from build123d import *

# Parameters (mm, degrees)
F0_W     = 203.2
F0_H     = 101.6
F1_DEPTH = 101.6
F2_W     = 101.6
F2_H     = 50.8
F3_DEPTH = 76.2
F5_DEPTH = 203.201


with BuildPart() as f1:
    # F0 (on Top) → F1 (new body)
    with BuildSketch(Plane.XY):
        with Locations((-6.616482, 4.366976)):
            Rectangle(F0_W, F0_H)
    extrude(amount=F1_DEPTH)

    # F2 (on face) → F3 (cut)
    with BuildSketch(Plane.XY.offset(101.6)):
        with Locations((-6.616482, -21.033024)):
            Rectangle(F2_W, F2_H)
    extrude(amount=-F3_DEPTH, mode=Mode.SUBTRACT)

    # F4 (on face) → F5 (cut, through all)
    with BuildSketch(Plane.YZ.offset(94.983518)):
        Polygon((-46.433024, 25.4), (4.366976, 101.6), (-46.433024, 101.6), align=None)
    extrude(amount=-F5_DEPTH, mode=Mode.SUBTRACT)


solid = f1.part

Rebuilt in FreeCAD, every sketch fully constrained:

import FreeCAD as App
import Part
import Sketcher
Q = App.Units.Quantity


def add_polygon(sketch, points):
    """Adds a closed chain of lines whose ends are joined by coincident constraints."""
    first, n = sketch.GeometryCount, len(points)
    for a, b in zip(points, points[1:] + points[:1]):
        sketch.addGeometry(Part.LineSegment(App.Vector(*a, 0), App.Vector(*b, 0)), False)
    for i in range(n):
        sketch.addConstraint(Sketcher.Constraint("Coincident", first + i, 2, first + (i + 1) % n, 1))

doc = App.newDocument("Part")
body = doc.addObject("PartDesign::Body", "Body")

sketch1 = body.newObject("Sketcher::SketchObject", "Sketch")
sketch1.AttachmentSupport = (doc.getObject("XY_Plane"), [""])
sketch1.MapMode = "FlatFace"
add_polygon(sketch1, [(-108.216482, 55.166976), (-108.216482, -46.433024), (94.983518, -46.433024), (94.983518, 55.166976)])
sketch1.addConstraint(Sketcher.Constraint("Vertical", 0))
sketch1.addConstraint(Sketcher.Constraint("Horizontal", 1))
sketch1.addConstraint(Sketcher.Constraint("Vertical", 2))
sketch1.addConstraint(Sketcher.Constraint("Horizontal", 3))
sketch1.addConstraint(Sketcher.Constraint("DistanceX", 1, 1, 1, 2, Q("8 in")))
sketch1.addConstraint(Sketcher.Constraint("DistanceY", 0, 2, 0, 1, Q("4 in")))
sketch1.addConstraint(Sketcher.Constraint("DistanceX", 0, 2, -1, 1, 108.216482))
sketch1.addConstraint(Sketcher.Constraint("DistanceY", 0, 2, -1, 1, 46.433024))
pad1 = body.newObject("PartDesign::Pad", "Pad")
pad1.Profile = sketch1
pad1.Length = Q("4 in")

sketch2 = body.newObject("Sketcher::SketchObject", "Sketch001")
sketch2.AttachmentSupport = (doc.getObject("XY_Plane"), [""])
sketch2.MapMode = "FlatFace"
sketch2.AttachmentOffset = App.Placement(App.Vector(0, 0, 4 * 25.4), App.Rotation())
add_polygon(sketch2, [(-57.416482, 4.366976), (-57.416482, -46.433024), (44.183518, -46.433024), (44.183518, 4.366976)])
sketch2.addConstraint(Sketcher.Constraint("Vertical", 0))
sketch2.addConstraint(Sketcher.Constraint("Horizontal", 1))
sketch2.addConstraint(Sketcher.Constraint("Vertical", 2))
sketch2.addConstraint(Sketcher.Constraint("Horizontal", 3))
sketch2.addConstraint(Sketcher.Constraint("DistanceX", 1, 1, 1, 2, Q("4 in")))
sketch2.addConstraint(Sketcher.Constraint("DistanceY", 0, 2, 0, 1, Q("2 in")))
sketch2.addConstraint(Sketcher.Constraint("DistanceX", 0, 2, -1, 1, 57.416482))
sketch2.addConstraint(Sketcher.Constraint("DistanceY", 0, 2, -1, 1, 46.433024))
pocket1 = body.newObject("PartDesign::Pocket", "Pocket")
pocket1.Profile = sketch2
pocket1.Length = Q("3 in")

sketch3 = body.newObject("Sketcher::SketchObject", "Sketch002")
sketch3.AttachmentSupport = (doc.getObject("YZ_Plane"), [""])
sketch3.MapMode = "FlatFace"
sketch3.AttachmentOffset = App.Placement(App.Vector(0, 0, 94.983518), App.Rotation())
add_polygon(sketch3, [(-46.433024, 25.4), (4.366976, 101.6), (-46.433024, 101.6)])
sketch3.addConstraint(Sketcher.Constraint("Horizontal", 1))
sketch3.addConstraint(Sketcher.Constraint("Vertical", 2))
sketch3.addConstraint(Sketcher.Constraint("DistanceX", 1, 2, 1, 1, Q("2 in")))
sketch3.addConstraint(Sketcher.Constraint("DistanceY", 2, 2, 2, 1, Q("3 in")))
sketch3.addConstraint(Sketcher.Constraint("DistanceY", -1, 1, 0, 2, Q("4 in")))
sketch3.addConstraint(Sketcher.Constraint("DistanceX", -1, 1, 0, 2, 4.366976))
pocket2 = body.newObject("PartDesign::Pocket", "Pocket001")
pocket2.Profile = sketch3
pocket2.Type = "ThroughAll"

doc.recompute()
